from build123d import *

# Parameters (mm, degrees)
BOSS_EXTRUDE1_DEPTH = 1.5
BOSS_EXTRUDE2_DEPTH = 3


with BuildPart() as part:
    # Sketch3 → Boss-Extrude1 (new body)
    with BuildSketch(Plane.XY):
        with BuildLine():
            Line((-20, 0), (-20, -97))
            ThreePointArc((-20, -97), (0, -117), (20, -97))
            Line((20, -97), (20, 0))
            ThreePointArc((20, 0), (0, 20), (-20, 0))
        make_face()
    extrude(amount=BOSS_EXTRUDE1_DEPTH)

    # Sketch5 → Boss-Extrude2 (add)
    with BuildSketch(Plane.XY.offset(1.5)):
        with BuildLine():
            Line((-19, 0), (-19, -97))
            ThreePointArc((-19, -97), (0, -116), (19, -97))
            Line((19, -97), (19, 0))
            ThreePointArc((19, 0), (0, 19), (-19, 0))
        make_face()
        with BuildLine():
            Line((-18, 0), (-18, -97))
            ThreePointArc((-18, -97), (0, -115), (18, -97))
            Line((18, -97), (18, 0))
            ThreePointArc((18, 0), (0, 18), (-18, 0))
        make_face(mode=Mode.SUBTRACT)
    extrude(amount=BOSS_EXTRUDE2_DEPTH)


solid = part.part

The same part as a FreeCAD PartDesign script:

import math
import FreeCAD as App
import Part
import Sketcher

doc = App.newDocument("Part")
body = doc.addObject("PartDesign::Body", "Body")

# Sketch on XY plane
sketch1 = doc.addObject("Sketcher::SketchObject", "Sketch")
body.addObject(sketch1)
sketch1.AttachmentSupport = (doc.XY_Plane, [""])
sketch1.MapMode = "FlatFace"
sketch1.addGeometry(Part.LineSegment(App.Vector(-20, 0, 0), App.Vector(-20, -97, 0)), False)
sketch1.addGeometry(Part.ArcOfCircle(Part.Circle(App.Vector(0, -97, 0), App.Vector(0, 0, 1), 20), math.radians(180), math.radians(360)), False)
sketch1.addGeometry(Part.LineSegment(App.Vector(20, -97, 0), App.Vector(20, 0, 0)), False)
sketch1.addGeometry(Part.ArcOfCircle(Part.Circle(App.Vector(0, 0, 0), App.Vector(0, 0, 1), 20), math.radians(0), math.radians(180)), False)
sketch1.addConstraint(Sketcher.Constraint("Tangent", 0, 2, 1, 1))
sketch1.addConstraint(Sketcher.Constraint("Tangent", 1, 2, 2, 1))
sketch1.addConstraint(Sketcher.Constraint("Tangent", 2, 2, 3, 1))
sketch1.addConstraint(Sketcher.Constraint("Tangent", 3, 2, 0, 1))
sketch1.addConstraint(Sketcher.Constraint("Vertical", 0))
sketch1.addConstraint(Sketcher.Constraint("Vertical", 2))
sketch1.addConstraint(Sketcher.Constraint("Coincident", 3, 3, -1, 1))
sketch1.addConstraint(Sketcher.Constraint("Radius", 1, 20.0))
sketch1.addConstraint(Sketcher.Constraint("DistanceY", 0, 2, 0, 1, 97.0))
pad1 = doc.addObject("PartDesign::Pad", "Pad")
body.addObject(pad1)
pad1.Profile = sketch1
pad1.Length = 1.5

# Sketch on XY plane
sketch2 = doc.addObject("Sketcher::SketchObject", "Sketch001")
body.addObject(sketch2)
sketch2.AttachmentSupport = (doc.XY_Plane, [""])
sketch2.MapMode = "FlatFace"
sketch2.AttachmentOffset = App.Placement(App.Vector(0, 0, 1.5), App.Rotation())
sketch2.addGeometry(Part.LineSegment(App.Vector(-19, 0, 0), App.Vector(-19, -97, 0)), False)
sketch2.addGeometry(Part.ArcOfCircle(Part.Circle(App.Vector(0, -97, 0), App.Vector(0, 0, 1), 19), math.radians(180), math.radians(360)), False)
sketch2.addGeometry(Part.LineSegment(App.Vector(19, -97, 0), App.Vector(19, 0, 0)), False)
sketch2.addGeometry(Part.ArcOfCircle(Part.Circle(App.Vector(0, 0, 0), App.Vector(0, 0, 1), 19), math.radians(0), math.radians(180)), False)
sketch2.addGeometry(Part.LineSegment(App.Vector(-18, -97, 0), App.Vector(-18, 0, 0)), False)
sketch2.addGeometry(Part.ArcOfCircle(Part.Circle(App.Vector(0, 0, 0), App.Vector(0, 0, 1), 18), math.radians(0), math.radians(180)), False)
sketch2.addGeometry(Part.LineSegment(App.Vector(18, 0, 0), App.Vector(18, -97, 0)), False)
sketch2.addGeometry(Part.ArcOfCircle(Part.Circle(App.Vector(0, -97, 0), App.Vector(0, 0, 1), 18), math.radians(180), math.radians(360)), False)
sketch2.addConstraint(Sketcher.Constraint("Tangent", 0, 2, 1, 1))
sketch2.addConstraint(Sketcher.Constraint("Tangent", 1, 2, 2, 1))
sketch2.addConstraint(Sketcher.Constraint("Tangent", 2, 2, 3, 1))
sketch2.addConstraint(Sketcher.Constraint("Tangent", 3, 2, 0, 1))
sketch2.addConstraint(Sketcher.Constraint("Tangent", 4, 2, 5, 2))
sketch2.addConstraint(Sketcher.Constraint("Tangent", 5, 1, 6, 1))
sketch2.addConstraint(Sketcher.Constraint("Tangent", 6, 2, 7, 2))
sketch2.addConstraint(Sketcher.Constraint("Tangent", 7, 1, 4, 1))
sketch2.addConstraint(Sketcher.Constraint("Vertical", 0))
sketch2.addConstraint(Sketcher.Constraint("Vertical", 2))
sketch2.addConstraint(Sketcher.Constraint("Vertical", 4))
sketch2.addConstraint(Sketcher.Constraint("Vertical", 6))
sketch2.addConstraint(Sketcher.Constraint("Coincident", 3, 3, -1, 1))
sketch2.addConstraint(Sketcher.Constraint("Coincident", 5, 3, -1, 1))
sketch2.addConstraint(Sketcher.Constraint("Horizontal", 7, 3, 0, 2))
sketch2.addConstraint(Sketcher.Constraint("Radius", 1, 19.0))
sketch2.addConstraint(Sketcher.Constraint("Radius", 5, 18.0))
sketch2.addConstraint(Sketcher.Constraint("DistanceY", 0, 2, 0, 1, 97.0))
pad2 = doc.addObject("PartDesign::Pad", "Pad001")
body.addObject(pad2)
pad2.Profile = sketch2
pad2.Length = 3

doc.recompute()
